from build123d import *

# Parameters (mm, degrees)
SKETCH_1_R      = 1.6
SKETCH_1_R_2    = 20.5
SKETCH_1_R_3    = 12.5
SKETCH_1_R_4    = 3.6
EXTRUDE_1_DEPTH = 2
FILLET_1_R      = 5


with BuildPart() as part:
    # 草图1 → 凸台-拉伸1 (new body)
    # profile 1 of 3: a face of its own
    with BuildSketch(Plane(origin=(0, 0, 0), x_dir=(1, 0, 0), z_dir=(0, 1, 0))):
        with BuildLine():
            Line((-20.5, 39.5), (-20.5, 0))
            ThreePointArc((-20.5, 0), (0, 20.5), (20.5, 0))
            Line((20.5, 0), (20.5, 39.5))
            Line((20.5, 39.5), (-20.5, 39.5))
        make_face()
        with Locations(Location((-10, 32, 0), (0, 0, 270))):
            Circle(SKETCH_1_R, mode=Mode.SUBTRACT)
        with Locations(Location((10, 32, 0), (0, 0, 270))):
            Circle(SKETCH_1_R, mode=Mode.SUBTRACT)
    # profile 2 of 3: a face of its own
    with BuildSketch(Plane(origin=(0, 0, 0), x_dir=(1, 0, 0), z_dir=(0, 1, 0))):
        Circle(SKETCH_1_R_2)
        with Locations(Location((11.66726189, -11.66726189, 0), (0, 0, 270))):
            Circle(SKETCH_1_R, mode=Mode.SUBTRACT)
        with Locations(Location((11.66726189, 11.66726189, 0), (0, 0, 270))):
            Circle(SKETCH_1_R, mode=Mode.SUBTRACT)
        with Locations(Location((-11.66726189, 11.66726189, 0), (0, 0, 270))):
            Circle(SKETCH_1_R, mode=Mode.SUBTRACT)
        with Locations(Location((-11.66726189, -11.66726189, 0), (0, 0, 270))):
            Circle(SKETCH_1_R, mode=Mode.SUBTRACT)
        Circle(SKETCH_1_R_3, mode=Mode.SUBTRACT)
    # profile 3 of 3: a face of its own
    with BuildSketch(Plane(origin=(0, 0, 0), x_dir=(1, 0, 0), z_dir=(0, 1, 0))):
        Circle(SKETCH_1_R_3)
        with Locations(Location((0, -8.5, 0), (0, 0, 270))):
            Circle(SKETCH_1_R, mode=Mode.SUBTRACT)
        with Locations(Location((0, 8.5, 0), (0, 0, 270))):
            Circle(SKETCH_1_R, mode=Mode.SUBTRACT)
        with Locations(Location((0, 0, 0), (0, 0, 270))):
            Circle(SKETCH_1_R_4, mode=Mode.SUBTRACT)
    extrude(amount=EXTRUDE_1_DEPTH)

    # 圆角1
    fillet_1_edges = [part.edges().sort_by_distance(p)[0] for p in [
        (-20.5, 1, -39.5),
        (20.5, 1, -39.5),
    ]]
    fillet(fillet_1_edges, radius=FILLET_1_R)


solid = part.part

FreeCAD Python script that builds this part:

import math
import FreeCAD as App
import Part
import Sketcher

V = App.Vector


def edges_at(feature, points):
    """Names of the edges that pass closest to the given points."""
    edges = feature.Shape.Edges
    near = lambda p: min(range(len(edges)), key=lambda i: edges[i].distToShape(Part.Vertex(*p))[0])
    return sorted({f"Edge{near(p) + 1}" for p in points})

doc = App.newDocument("Part")
body = doc.addObject("PartDesign::Body", "Body")

# Sketch on XZ plane
sketch1 = body.newObject("Sketcher::SketchObject", "Sketch")
sketch1.AttachmentSupport = (doc.getObject("XZ_Plane"), [""])
sketch1.MapMode = "FlatFace"
sketch1.addGeometry(Part.LineSegment(V(-20.5, -39.5, 0), V(-20.5, 0, 0)), False)
sketch1.addGeometry(Part.ArcOfCircle(Part.Circle(V(0, 0, 0), V(0, 0, 1), 20.5), math.radians(0), math.radians(180)), False)
sketch1.addGeometry(Part.LineSegment(V(20.5, 0, 0), V(20.5, -39.5, 0)), False)
sketch1.addGeometry(Part.LineSegment(V(20.5, -39.5, 0), V(-20.5, -39.5, 0)), False)
sketch1.addGeometry(Part.Circle(V(-10, -32, 0), V(0, 0, 1), 1.6), False)
sketch1.addGeometry(Part.Circle(V(10, -32, 0), V(0, 0, 1), 1.6), False)
sketch1.addGeometry(Part.Circle(V(11.7, -11.7, 0), V(0, 0, 1), 1.6), False)
sketch1.addGeometry(Part.Circle(V(-11.7, 11.7, 0), V(0, 0, 1), 1.6), False)
sketch1.addGeometry(Part.Circle(V(11.7, 11.7, 0), V(0, 0, 1), 1.6), False)
sketch1.addGeometry(Part.Circle(V(-11.7, -11.7, 0), V(0, 0, 1), 1.6), False)
sketch1.addGeometry(Part.Circle(V(0, -8.5, 0), V(0, 0, 1), 1.6), False)
sketch1.addGeometry(Part.Circle(V(0, 8.5, 0), V(0, 0, 1), 1.6), False)
sketch1.addGeometry(Part.Circle(V(0, 0, 0), V(0, 0, 1), 3.6), False)
sketch1.addConstraint(Sketcher.Constraint("Tangent", 0, 2, 1, 2))
sketch1.addConstraint(Sketcher.Constraint("Tangent", 1, 1, 2, 1))
sketch1.addConstraint(Sketcher.Constraint("Coincident", 2, 2, 3, 1))
sketch1.addConstraint(Sketcher.Constraint("Coincident", 3, 2, 0, 1))
sketch1.addConstraint(Sketcher.Constraint("Vertical", 0))
sketch1.addConstraint(Sketcher.Constraint("Vertical", 2))
sketch1.addConstraint(Sketcher.Constraint("Horizontal", 3))
sketch1.addConstraint(Sketcher.Constraint("Coincident", 1, 3, -1, 1))
sketch1.addConstraint(Sketcher.Constraint("Coincident", 12, 3, -1, 1))
sketch1.addConstraint(Sketcher.Constraint("Equal", 4, 5))
sketch1.addConstraint(Sketcher.Constraint("Equal", 5, 6))
sketch1.addConstraint(Sketcher.Constraint("Equal", 6, 7))
sketch1.addConstraint(Sketcher.Constraint("Equal", 7, 8))
sketch1.addConstraint(Sketcher.Constraint("Equal", 8, 9))
sketch1.addConstraint(Sketcher.Constraint("Equal", 9, 10))
sketch1.addConstraint(Sketcher.Constraint("Equal", 10, 11))
sketch1.addConstraint(Sketcher.Constraint("Symmetric", 6, 3, 7, 3, -1, 1))
sketch1.addConstraint(Sketcher.Constraint("Symmetric", 8, 3, 9, 3, -1, 1))
sketch1.addConstraint(Sketcher.Constraint("Symmetric", 10, 3, 11, 3, -1, 1))
sketch1.addConstraint(Sketcher.Constraint("Symmetric", 4, 3, 5, 3, -2))
sketch1.addConstraint(Sketcher.Constraint("Symmetric", 7, 3, 8, 3, -2))
sketch1.addConstraint(Sketcher.Constraint("PointOnObject", 10, 3, -2))
sketch1.addConstraint(Sketcher.Constraint("Diameter", 4, 3.2))
sketch1.addConstraint(Sketcher.Constraint("Diameter", 12, 7.2))
sketch1.addConstraint(Sketcher.Constraint("Radius", 1, 20.5))
sketch1.addConstraint(Sketcher.Constraint("DistanceY", 0, 1, 0, 2, 39.5))
sketch1.addConstraint(Sketcher.Constraint("DistanceX", 4, 3, -1, 1, 10.0))
sketch1.addConstraint(Sketcher.Constraint("DistanceY", 4, 3, -1, 1, 32.0))
sketch1.addConstraint(Sketcher.Constraint("DistanceY", 10, 3, 11, 3, 17.0))
sketch1.addConstraint(Sketcher.Constraint("DistanceX", -1, 1, 6, 3, 11.667262))
sketch1.addConstraint(Sketcher.Constraint("DistanceY", 6, 3, -1, 1, 11.667262))
pad1 = body.newObject("PartDesign::Pad", "Pad")
pad1.Profile = sketch1
pad1.Length = 2
pad1.Reversed = True
doc.recompute()

fillet = body.newObject("PartDesign::Fillet", "Fillet")
fillet.Base = (pad1, edges_at(pad1, [(-20.5, 1, -39.5), (20.5, 1, -39.5)]))
fillet.Radius = 5

doc.recompute()
